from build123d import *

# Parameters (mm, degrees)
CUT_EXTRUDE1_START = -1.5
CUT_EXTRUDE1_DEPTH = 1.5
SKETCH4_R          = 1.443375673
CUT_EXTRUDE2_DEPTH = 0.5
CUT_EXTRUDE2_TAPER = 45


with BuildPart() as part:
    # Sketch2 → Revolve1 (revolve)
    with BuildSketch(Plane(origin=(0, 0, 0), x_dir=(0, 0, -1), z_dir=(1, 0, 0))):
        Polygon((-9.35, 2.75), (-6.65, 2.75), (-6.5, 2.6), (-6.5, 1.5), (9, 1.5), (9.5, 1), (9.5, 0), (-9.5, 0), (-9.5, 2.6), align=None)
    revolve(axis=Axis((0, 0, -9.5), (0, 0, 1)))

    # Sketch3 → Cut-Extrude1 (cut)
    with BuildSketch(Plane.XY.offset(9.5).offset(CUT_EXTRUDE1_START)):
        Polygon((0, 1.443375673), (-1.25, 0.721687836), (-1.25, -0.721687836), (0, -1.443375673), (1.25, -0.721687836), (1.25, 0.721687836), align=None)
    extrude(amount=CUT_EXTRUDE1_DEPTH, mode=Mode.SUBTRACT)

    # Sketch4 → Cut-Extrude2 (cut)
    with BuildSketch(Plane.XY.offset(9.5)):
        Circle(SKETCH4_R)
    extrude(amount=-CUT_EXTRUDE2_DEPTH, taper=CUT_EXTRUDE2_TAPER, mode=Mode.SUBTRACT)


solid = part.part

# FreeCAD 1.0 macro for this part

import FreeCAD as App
import Part
import Sketcher

V = App.Vector
Q = App.Units.Quantity


def add_polygon(sketch, points):
    """Adds a closed chain of lines whose ends are joined by coincident constraints."""
    first, n = sketch.GeometryCount, len(points)
    for a, b in zip(points, points[1:] + points[:1]):
        sketch.addGeometry(Part.LineSegment(App.Vector(*a, 0), App.Vector(*b, 0)), False)
    for i in range(n):
        sketch.addConstraint(Sketcher.Constraint("Coincident", first + i, 2, first + (i + 1) % n, 1))

doc = App.newDocument("Part")
params = doc.addObject("Spreadsheet::Sheet", "Params")
for row, (alias, value) in enumerate([
    ("sketch1_width", "1 mm"),
    ("sketch1_height", "19 mm"),
    ("sketch1_width2", "2.6 mm"),
    ("sketch1_width3", "1.1 mm"),
    ("sketch1_height2", "2.7 mm"),
    ("revolution_angle", "360 deg"),
    ("pocket1_length", "1.5 mm"),
    ("pocket2_length", "0.5 mm"),
    ("pocket2_taper", "-45 deg"),
], start=1):
    params.set(f"A{row}", alias)
    params.set(f"B{row}", "=" + value)
    params.setAlias(f"B{row}", alias)

body = doc.addObject("PartDesign::Body", "Body")

# Sketch on YZ plane
sketch1 = body.newObject("Sketcher::SketchObject", "Sketch")
sketch1.AttachmentSupport = (doc.getObject("YZ_Plane"), [""])
sketch1.MapMode = "FlatFace"
add_polygon(sketch1, [(2.75, 6.65), (2.75, 9.35), (2.6, 9.5), (0, 9.5), (0, -9.5), (1, -9.5), (1.5, -9), (1.5, 6.5), (2.6, 6.5)])  # lines 0-8
sketch1.addConstraint([
    Sketcher.Constraint("Vertical", 0),
    Sketcher.Constraint("Horizontal", 2),
    Sketcher.Constraint("Vertical", 3),
    Sketcher.Constraint("Horizontal", 4),
    Sketcher.Constraint("Vertical", 6),
    Sketcher.Constraint("Horizontal", 7),
    Sketcher.Constraint("Symmetric", 2, 2, 3, 2, -1, 1),
    Sketcher.Constraint("Perpendicular", 1, 5),
    Sketcher.Constraint("Parallel", 5, 8),
    Sketcher.Constraint("Vertical", 1, 2, 7, 2),
    Sketcher.Constraint("Equal", 1, 8),
    Sketcher.Constraint("DistanceX", 4, 1, 4, 2, Q("1 mm")),
    Sketcher.Constraint("DistanceY", 3, 2, 3, 1, Q("19 mm")),
    Sketcher.Constraint("DistanceX", 2, 2, 2, 1, Q("2.6 mm")),
    Sketcher.Constraint("DistanceX", 7, 1, 7, 2, Q("1.1 mm")),
    Sketcher.Constraint("DistanceY", 0, 1, 0, 2, Q("2.7 mm")),
    Sketcher.Constraint("DistanceY", 6, 1, 6, 2, Q("15.5 mm")),
])
sketch1.setExpression("Constraints[20]", "Params.sketch1_width")
sketch1.setExpression("Constraints[21]", "Params.sketch1_height")
sketch1.setExpression("Constraints[22]", "Params.sketch1_width2")
sketch1.setExpression("Constraints[23]", "Params.sketch1_width3")
sketch1.setExpression("Constraints[24]", "Params.sketch1_height2")
revolution = body.newObject("PartDesign::Revolution", "Revolution")
revolution.Profile = sketch1
revolution.ReferenceAxis = (sketch1, ["V_Axis"])
revolution.setExpression("Angle", "Params.revolution_angle")

# Sketch on XY plane
sketch2 = body.newObject("Sketcher::SketchObject", "Sketch001")
sketch2.AttachmentSupport = (doc.getObject("XY_Plane"), [""])
sketch2.MapMode = "FlatFace"
sketch2.AttachmentOffset = App.Placement(V(0, 0, 8), App.Rotation())
add_polygon(sketch2, [(0, 1.443376), (-1.25, 0.721688), (-1.25, -0.721688), (0, -1.443376), (1.25, -0.721688), (1.25, 0.721688)])  # lines 0-5
sketch2.addConstraint([
    Sketcher.Constraint("Vertical", 1),
    Sketcher.Constraint("Vertical", 4),
    Sketcher.Constraint("Symmetric", 0, 2, 3, 2, -1, 1),
    Sketcher.Constraint("Symmetric", 2, 2, 5, 2, -1, 1),
    Sketcher.Constraint("PointOnObject", 2, 2, -2),
    Sketcher.Constraint("Parallel", 2, 5),
    Sketcher.Constraint("Horizontal", 1, 2, 3, 2),
    Sketcher.Constraint("Angle", 0, Q("-150 deg")),
    Sketcher.Constraint("DistanceX", 1, 2, 3, 2, Q("2.5 mm")),
    Sketcher.Constraint("DistanceY", 1, 2, 1, 1, Q("1.443376 mm")),
])
pocket1 = body.newObject("PartDesign::Pocket", "Pocket")
pocket1.Profile = sketch2
pocket1.setExpression("Length", "Params.pocket1_length")
pocket1.Reversed = True

# Sketch on XY plane
sketch3 = body.newObject("Sketcher::SketchObject", "Sketch002")
sketch3.AttachmentSupport = (doc.getObject("XY_Plane"), [""])
sketch3.MapMode = "FlatFace"
sketch3.AttachmentOffset = App.Placement(V(0, 0, 9.5), App.Rotation())
sketch3.addGeometry(Part.Circle(V(0, 0, 0), V(0, 0, 1), 1.443376), False)
sketch3.addConstraint([
    Sketcher.Constraint("Coincident", 0, 3, -1, 1),
    Sketcher.Constraint("Diameter", 0, Q("2.886751 mm")),
])
pocket2 = body.newObject("PartDesign::Pocket", "Pocket001")
pocket2.Profile = sketch3
pocket2.setExpression("Length", "Params.pocket2_length")
pocket2.setExpression("TaperAngle", "Params.pocket2_taper")

doc.recompute()
